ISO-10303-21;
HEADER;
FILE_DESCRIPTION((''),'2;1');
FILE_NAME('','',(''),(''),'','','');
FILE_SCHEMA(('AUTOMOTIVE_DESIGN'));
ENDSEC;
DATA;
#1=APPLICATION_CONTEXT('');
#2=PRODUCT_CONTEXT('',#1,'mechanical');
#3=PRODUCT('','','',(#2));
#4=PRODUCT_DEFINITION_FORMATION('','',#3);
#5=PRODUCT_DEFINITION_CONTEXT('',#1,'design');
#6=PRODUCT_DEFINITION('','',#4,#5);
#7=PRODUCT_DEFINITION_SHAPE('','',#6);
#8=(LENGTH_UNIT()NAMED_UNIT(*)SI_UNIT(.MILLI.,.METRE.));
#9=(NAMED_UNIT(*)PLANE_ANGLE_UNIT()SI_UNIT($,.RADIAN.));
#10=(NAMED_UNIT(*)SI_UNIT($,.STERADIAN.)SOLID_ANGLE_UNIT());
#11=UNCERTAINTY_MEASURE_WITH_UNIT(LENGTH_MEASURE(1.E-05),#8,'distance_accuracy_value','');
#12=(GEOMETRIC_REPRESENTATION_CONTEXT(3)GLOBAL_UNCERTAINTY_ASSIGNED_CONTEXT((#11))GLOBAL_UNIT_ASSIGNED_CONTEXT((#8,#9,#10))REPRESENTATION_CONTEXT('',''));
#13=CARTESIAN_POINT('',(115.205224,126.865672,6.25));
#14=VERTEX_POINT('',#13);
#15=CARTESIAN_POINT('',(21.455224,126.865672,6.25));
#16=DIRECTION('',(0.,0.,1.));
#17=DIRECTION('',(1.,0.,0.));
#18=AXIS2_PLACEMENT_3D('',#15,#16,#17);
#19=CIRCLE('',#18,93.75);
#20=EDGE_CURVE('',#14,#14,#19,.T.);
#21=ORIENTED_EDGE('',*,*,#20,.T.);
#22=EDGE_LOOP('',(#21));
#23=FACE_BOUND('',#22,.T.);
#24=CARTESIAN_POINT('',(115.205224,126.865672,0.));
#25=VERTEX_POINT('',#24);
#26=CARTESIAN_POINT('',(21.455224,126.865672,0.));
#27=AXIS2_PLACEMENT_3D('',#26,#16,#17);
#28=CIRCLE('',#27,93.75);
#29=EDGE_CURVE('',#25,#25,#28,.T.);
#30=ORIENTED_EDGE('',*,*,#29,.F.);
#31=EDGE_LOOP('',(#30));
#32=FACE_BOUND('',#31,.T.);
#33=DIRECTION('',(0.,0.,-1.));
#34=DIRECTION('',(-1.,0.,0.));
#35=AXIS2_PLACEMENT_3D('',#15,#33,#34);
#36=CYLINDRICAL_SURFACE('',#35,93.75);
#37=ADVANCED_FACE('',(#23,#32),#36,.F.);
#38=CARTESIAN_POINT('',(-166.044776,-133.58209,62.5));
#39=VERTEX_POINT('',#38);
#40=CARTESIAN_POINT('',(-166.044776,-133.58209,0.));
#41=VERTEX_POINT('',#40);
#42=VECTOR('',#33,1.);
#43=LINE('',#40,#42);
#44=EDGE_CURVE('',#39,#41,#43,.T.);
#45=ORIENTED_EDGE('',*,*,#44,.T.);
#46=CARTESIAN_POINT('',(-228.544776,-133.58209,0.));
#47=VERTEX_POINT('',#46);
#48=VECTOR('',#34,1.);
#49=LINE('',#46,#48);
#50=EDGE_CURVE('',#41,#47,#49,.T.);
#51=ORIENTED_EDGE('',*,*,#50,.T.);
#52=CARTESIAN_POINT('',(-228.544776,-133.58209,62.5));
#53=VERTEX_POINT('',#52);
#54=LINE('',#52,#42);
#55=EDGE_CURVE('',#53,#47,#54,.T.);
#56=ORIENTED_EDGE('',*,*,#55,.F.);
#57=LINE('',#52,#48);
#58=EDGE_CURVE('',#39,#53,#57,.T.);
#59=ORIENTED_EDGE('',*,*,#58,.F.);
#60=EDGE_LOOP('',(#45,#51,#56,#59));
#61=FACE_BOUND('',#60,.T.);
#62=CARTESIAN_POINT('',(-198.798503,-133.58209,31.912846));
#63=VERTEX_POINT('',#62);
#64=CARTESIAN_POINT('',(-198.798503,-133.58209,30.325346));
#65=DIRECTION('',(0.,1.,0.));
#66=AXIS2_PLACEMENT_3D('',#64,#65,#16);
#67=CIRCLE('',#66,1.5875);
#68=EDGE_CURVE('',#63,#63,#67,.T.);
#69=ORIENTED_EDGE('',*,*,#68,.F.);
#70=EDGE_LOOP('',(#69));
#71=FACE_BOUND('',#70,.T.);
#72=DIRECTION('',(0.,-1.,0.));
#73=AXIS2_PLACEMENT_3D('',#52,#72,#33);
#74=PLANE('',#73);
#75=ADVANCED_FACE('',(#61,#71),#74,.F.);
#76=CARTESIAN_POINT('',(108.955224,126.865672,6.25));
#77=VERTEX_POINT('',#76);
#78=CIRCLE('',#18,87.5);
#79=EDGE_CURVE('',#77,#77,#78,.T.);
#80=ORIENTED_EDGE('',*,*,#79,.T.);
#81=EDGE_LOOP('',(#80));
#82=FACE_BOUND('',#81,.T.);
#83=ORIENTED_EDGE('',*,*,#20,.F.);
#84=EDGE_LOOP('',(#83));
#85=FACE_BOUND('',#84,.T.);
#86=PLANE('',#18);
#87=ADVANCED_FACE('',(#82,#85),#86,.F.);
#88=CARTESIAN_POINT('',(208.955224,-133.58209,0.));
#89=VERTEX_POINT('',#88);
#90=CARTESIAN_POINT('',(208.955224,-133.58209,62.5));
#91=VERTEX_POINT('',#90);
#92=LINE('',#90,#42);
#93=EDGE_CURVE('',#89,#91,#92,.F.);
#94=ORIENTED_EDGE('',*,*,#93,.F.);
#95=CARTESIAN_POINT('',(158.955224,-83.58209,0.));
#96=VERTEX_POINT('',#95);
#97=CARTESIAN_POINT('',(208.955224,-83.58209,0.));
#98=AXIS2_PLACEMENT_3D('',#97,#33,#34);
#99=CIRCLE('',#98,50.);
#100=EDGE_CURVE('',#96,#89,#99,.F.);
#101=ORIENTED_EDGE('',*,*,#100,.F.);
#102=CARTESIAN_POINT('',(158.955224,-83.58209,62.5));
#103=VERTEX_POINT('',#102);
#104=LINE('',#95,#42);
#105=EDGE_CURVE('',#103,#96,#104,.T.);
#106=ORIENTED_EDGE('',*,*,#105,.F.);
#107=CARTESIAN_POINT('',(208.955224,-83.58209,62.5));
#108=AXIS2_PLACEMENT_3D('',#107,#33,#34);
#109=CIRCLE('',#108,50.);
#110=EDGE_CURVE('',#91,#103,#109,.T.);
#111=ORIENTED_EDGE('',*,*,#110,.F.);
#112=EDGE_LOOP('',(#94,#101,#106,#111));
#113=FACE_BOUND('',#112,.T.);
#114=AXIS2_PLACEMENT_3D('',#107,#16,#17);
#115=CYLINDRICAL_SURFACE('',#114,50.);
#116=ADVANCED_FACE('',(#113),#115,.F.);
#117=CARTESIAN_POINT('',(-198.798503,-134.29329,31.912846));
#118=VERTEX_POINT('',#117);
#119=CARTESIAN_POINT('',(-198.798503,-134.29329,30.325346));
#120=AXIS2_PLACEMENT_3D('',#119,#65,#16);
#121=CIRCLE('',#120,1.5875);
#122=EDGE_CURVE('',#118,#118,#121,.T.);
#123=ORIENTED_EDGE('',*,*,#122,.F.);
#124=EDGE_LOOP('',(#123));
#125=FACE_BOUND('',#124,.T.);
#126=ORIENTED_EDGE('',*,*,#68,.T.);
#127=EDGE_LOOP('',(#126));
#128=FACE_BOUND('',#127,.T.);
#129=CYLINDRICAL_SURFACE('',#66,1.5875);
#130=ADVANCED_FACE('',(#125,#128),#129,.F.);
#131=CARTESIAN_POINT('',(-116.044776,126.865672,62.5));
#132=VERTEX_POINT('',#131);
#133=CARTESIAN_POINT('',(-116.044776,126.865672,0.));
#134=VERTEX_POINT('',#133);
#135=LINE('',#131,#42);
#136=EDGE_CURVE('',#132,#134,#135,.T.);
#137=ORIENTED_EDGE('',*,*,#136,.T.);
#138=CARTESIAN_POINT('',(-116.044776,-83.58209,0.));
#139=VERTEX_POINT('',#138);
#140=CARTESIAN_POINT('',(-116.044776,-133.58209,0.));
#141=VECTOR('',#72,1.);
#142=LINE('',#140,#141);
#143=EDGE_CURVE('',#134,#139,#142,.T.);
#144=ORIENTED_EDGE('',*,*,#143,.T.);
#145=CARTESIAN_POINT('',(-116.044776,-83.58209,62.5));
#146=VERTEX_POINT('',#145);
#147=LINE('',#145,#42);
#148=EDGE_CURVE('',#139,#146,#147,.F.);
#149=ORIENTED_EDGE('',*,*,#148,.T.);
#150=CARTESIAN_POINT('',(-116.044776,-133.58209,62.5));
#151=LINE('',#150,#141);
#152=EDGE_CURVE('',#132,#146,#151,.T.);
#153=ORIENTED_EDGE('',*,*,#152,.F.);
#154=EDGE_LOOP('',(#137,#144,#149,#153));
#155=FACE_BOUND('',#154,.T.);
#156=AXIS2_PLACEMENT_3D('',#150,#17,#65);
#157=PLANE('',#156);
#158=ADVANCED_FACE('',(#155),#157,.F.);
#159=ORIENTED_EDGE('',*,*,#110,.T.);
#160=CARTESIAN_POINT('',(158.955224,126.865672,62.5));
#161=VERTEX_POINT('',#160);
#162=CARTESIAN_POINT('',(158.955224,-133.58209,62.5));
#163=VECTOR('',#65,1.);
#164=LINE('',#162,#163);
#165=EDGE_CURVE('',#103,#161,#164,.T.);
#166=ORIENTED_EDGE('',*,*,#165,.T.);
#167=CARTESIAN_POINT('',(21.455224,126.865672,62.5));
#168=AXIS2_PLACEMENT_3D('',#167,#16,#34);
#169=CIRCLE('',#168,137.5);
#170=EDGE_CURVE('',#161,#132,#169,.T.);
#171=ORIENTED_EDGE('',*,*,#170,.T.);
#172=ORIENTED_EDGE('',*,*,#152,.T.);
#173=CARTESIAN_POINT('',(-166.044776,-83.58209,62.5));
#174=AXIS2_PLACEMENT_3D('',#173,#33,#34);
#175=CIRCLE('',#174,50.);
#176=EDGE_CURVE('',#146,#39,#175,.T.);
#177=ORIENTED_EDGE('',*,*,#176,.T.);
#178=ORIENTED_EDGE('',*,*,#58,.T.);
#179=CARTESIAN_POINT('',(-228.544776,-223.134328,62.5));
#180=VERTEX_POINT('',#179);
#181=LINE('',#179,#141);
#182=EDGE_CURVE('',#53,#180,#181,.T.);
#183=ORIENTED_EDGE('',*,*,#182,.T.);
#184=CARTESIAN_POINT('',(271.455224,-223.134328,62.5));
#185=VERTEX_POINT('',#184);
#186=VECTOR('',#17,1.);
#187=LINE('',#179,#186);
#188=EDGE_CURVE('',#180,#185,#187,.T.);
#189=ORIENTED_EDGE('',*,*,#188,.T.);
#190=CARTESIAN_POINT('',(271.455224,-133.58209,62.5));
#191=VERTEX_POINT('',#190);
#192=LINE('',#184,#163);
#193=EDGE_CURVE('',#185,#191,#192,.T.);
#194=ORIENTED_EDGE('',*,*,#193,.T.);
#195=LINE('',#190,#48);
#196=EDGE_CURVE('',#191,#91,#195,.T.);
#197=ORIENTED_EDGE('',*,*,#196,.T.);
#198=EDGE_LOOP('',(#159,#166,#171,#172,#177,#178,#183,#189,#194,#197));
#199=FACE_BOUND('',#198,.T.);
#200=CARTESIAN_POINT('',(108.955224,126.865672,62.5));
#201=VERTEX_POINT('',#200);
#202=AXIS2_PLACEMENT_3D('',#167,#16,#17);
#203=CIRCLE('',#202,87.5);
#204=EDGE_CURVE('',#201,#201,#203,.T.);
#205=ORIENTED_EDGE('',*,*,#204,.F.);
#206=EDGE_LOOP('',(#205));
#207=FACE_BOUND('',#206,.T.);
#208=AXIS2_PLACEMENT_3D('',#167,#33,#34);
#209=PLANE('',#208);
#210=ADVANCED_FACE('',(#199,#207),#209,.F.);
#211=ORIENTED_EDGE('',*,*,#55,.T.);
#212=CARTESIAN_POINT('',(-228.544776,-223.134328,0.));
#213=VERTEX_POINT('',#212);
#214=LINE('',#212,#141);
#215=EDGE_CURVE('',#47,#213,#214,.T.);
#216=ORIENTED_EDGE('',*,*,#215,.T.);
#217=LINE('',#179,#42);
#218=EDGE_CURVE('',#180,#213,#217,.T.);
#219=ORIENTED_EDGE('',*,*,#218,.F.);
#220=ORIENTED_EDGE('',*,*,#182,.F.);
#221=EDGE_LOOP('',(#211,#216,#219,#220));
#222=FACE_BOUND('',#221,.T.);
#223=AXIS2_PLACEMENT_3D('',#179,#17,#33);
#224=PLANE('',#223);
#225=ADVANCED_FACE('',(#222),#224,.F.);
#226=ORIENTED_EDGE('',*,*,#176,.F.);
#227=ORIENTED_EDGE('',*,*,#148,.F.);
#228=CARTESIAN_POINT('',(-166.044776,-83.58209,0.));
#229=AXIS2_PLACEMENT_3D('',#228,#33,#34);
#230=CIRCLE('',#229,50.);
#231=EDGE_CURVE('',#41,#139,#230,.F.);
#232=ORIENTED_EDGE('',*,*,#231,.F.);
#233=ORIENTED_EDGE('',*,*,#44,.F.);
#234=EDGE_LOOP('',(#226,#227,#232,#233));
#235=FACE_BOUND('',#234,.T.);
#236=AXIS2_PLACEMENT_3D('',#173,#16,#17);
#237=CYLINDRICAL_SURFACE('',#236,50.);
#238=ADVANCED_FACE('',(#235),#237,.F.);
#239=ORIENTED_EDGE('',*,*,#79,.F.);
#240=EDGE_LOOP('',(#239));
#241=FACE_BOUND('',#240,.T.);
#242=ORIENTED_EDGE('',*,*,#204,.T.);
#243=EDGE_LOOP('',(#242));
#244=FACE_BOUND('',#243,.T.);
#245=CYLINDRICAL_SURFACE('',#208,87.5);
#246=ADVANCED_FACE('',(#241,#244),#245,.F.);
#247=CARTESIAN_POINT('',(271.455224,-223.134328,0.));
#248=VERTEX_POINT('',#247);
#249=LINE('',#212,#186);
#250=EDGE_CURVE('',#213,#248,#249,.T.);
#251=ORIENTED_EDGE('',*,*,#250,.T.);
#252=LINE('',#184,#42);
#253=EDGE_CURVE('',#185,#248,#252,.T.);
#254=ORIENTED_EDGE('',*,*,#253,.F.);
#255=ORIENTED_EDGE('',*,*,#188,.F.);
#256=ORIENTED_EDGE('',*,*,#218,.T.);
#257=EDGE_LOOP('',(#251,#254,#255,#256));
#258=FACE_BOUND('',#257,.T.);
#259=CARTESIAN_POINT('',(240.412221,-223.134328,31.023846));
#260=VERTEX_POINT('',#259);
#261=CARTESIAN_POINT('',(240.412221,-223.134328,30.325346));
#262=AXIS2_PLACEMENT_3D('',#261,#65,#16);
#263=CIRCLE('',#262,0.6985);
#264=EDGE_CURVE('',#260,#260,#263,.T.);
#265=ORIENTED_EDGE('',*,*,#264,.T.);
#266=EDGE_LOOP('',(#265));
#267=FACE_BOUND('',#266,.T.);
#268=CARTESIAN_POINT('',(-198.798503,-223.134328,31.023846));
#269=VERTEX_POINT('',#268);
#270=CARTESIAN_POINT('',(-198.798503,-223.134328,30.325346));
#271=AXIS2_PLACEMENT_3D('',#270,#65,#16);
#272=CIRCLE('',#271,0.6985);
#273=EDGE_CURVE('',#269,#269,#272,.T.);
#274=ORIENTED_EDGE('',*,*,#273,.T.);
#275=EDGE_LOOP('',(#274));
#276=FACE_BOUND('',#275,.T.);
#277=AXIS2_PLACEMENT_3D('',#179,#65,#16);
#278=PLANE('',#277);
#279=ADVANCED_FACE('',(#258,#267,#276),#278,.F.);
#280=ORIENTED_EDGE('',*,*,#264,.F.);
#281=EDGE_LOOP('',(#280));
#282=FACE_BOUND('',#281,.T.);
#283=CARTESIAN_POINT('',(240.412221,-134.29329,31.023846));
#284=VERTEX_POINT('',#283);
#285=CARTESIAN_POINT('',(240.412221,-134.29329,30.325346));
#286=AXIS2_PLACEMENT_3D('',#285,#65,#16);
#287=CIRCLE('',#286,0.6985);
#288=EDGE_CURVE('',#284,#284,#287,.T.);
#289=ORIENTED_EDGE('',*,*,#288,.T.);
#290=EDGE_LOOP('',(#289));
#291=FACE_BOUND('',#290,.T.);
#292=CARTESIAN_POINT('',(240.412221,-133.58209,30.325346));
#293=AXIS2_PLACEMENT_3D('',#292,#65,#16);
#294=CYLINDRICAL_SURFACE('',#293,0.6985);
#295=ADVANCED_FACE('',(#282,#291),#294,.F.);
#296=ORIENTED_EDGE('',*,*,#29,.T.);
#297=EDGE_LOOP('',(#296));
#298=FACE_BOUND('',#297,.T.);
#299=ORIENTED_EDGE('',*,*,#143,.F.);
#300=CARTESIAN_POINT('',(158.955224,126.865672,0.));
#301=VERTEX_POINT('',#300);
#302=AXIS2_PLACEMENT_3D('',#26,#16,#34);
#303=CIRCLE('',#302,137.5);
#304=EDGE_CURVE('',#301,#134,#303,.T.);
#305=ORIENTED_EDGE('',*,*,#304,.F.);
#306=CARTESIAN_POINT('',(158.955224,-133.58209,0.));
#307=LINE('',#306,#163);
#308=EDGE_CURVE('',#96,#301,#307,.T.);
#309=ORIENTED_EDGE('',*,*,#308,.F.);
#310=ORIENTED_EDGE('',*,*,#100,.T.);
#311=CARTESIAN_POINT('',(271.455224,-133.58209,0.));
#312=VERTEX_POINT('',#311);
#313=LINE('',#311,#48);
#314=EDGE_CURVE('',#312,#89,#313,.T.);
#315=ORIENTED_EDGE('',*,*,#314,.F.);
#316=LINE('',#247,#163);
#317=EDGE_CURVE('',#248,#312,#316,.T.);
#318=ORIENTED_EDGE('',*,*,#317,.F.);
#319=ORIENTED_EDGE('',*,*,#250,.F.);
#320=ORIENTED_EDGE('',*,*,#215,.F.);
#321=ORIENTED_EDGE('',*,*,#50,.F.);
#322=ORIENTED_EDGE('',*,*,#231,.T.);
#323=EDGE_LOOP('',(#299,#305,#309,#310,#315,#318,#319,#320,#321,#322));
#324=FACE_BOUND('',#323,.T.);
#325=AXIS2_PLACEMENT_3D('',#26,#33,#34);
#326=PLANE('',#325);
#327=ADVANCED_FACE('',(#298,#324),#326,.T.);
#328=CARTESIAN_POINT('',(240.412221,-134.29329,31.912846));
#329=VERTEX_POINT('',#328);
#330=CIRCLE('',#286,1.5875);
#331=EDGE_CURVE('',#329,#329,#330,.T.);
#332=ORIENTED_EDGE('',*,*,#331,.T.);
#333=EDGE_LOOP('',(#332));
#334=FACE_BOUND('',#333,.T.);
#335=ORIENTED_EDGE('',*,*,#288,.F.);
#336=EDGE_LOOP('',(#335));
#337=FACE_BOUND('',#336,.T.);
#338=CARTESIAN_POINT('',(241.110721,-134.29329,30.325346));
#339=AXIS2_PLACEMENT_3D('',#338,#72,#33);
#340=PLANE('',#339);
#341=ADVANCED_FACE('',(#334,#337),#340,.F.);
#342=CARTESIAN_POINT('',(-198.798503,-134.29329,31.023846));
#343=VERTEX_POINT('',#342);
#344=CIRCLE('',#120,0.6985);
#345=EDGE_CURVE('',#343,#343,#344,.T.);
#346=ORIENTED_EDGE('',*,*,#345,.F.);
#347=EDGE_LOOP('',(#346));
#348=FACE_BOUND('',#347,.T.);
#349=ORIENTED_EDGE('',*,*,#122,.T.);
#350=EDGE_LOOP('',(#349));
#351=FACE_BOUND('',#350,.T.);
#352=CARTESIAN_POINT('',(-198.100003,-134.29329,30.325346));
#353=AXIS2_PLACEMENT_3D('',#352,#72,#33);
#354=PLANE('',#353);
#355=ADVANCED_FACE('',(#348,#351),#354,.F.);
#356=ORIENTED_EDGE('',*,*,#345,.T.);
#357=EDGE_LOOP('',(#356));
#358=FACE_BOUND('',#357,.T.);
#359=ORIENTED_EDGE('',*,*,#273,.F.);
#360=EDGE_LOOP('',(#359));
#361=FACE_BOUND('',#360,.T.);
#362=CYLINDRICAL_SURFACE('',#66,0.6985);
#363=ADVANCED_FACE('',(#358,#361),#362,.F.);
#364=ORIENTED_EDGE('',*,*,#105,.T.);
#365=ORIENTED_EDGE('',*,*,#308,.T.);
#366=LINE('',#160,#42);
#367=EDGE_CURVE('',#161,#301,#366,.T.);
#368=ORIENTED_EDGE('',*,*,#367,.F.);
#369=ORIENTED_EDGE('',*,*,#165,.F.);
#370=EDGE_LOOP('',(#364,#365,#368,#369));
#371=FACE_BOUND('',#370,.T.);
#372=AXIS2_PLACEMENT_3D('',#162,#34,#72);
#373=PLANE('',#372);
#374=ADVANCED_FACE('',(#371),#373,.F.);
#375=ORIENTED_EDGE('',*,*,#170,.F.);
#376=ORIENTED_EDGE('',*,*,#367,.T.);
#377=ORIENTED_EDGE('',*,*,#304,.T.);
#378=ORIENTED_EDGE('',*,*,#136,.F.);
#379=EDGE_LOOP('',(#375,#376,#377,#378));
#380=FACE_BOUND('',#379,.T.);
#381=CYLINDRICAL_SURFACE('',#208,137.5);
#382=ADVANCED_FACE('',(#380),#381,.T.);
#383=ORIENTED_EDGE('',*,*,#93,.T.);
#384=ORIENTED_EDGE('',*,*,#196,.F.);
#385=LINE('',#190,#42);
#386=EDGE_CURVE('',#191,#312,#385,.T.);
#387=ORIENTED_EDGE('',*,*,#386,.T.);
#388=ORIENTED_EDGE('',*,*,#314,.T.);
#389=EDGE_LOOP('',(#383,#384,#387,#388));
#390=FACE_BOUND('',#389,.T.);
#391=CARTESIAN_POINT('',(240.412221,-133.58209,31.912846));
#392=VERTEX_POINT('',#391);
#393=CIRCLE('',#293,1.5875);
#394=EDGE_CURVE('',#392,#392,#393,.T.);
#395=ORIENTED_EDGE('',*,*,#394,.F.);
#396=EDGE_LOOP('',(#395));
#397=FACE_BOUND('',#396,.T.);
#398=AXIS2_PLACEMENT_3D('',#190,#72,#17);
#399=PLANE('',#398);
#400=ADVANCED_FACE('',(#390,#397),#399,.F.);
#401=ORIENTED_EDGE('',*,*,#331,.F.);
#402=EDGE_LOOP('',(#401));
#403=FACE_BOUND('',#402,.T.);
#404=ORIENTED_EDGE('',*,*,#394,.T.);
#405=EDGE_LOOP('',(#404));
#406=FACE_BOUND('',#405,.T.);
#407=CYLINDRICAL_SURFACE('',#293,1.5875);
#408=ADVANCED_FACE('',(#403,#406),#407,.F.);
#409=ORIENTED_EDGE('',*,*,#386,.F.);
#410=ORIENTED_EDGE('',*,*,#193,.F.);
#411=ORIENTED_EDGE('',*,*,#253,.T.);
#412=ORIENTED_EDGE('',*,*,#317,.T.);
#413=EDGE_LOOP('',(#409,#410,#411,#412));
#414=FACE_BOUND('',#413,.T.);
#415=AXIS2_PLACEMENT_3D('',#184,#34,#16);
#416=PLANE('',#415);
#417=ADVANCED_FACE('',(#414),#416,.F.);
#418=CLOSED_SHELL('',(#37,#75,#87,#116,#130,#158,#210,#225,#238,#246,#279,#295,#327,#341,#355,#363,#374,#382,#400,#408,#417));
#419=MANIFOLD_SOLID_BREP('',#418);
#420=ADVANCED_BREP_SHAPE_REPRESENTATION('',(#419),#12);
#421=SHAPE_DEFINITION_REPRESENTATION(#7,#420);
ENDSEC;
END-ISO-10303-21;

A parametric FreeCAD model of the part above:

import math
import FreeCAD as App
import Part
import Sketcher
from FreeCAD import Vector
Q = App.Units.Quantity


def edges_at(feature, points):
    """Names of the edges that pass closest to the given points."""
    edges = feature.Shape.Edges
    near = lambda p: min(range(len(edges)), key=lambda i: edges[i].distToShape(Part.Vertex(*p))[0])
    return sorted({f"Edge{near(p) + 1}" for p in points})

doc = App.newDocument("Part")
body = doc.addObject("PartDesign::Body", "Body")

sketch1 = body.newObject("Sketcher::SketchObject", "Sketch")
sketch1.AttachmentSupport = (doc.getObject("XY_Plane"), [""])
sketch1.MapMode = "FlatFace"
sketch1.addGeometry([
    Part.LineSegment(Vector(-229, -223, 0), Vector(271, -223, 0)),
    Part.LineSegment(Vector(271, -223, 0), Vector(271, -134, 0)),
    Part.LineSegment(Vector(271, -134, 0), Vector(159, -134, 0)),
    Part.LineSegment(Vector(159, -134, 0), Vector(159, 127, 0)),
    Part.ArcOfCircle(Part.Circle(Vector(21, 127, 0), Vector(0, 0, 1), 138), math.radians(0), math.radians(180)),
    Part.LineSegment(Vector(-116, 127, 0), Vector(-116, -134, 0)),
    Part.LineSegment(Vector(-116, -134, 0), Vector(-229, -134, 0)),
    Part.LineSegment(Vector(-229, -134, 0), Vector(-229, -223, 0)),
    Part.Circle(Vector(21, 127, 0), Vector(0, 0, 1), 88),
], False)
sketch1.addConstraint([
    Sketcher.Constraint("Coincident", 0, 2, 1, 1),
    Sketcher.Constraint("Coincident", 1, 2, 2, 1),
    Sketcher.Constraint("Coincident", 2, 2, 3, 1),
    Sketcher.Constraint("Tangent", 3, 2, 4, 1),
    Sketcher.Constraint("Tangent", 4, 2, 5, 1),
    Sketcher.Constraint("Coincident", 5, 2, 6, 1),
    Sketcher.Constraint("Coincident", 6, 2, 7, 1),
    Sketcher.Constraint("Coincident", 7, 2, 0, 1),
    Sketcher.Constraint("Horizontal", 0),
    Sketcher.Constraint("Vertical", 1),
    Sketcher.Constraint("Horizontal", 2),
    Sketcher.Constraint("Vertical", 3),
    Sketcher.Constraint("Vertical", 5),
    Sketcher.Constraint("Horizontal", 6),
    Sketcher.Constraint("Vertical", 7),
    Sketcher.Constraint("Coincident", 8, 3, 4, 3),
    Sketcher.Constraint("Horizontal", 2, 2, 5, 2),
    Sketcher.Constraint("Equal", 2, 6),
    Sketcher.Constraint("Diameter", 8, Q("175 mm")),
    Sketcher.Constraint("Radius", 4, Q("137.5 mm")),
    Sketcher.Constraint("DistanceX", 0, 1, 0, 2, Q("500 mm")),
    Sketcher.Constraint("DistanceY", 0, 2, 4, 3, Q("350 mm")),
    Sketcher.Constraint("DistanceY", 1, 1, 1, 2, Q("89.552239 mm")),
    Sketcher.Constraint("DistanceY", -1, 1, 4, 3, Q("126.865672 mm")),
    Sketcher.Constraint("DistanceX", -1, 1, 4, 3, Q("21.455224 mm")),
])
pad1 = body.newObject("PartDesign::Pad", "Pad")
pad1.Profile = sketch1
pad1.Length = 62.5
doc.recompute()

fillet = body.newObject("PartDesign::Fillet", "Fillet")
fillet.Base = (pad1, edges_at(pad1, [(-116.045, -133.582, 31.25), (158.955, -133.582, 31.25)]))
fillet.Radius = 50

sketch2 = body.newObject("Sketcher::SketchObject", "Sketch001")
sketch2.AttachmentSupport = (doc.getObject("XY_Plane"), [""])
sketch2.MapMode = "FlatFace"
sketch2.addGeometry(Part.Circle(Vector(21, 127, 0), Vector(0, 0, 1), 94), False)
sketch2.addConstraint([
    Sketcher.Constraint("Diameter", 0, Q("187.5 mm")),
    Sketcher.Constraint("DistanceY", -1, 1, 0, 3, Q("126.865672 mm")),
    Sketcher.Constraint("DistanceX", -1, 1, 0, 3, Q("21.455224 mm")),
])
pocket1 = body.newObject("PartDesign::Pocket", "Pocket")
pocket1.Profile = sketch2
pocket1.Length = 6.25
pocket1.Reversed = True

sketch3 = body.newObject("Sketcher::SketchObject", "Sketch002")
sketch3.AttachmentSupport = (doc.getObject("XZ_Plane"), [""])
sketch3.MapMode = "FlatFace"
sketch3.AttachmentOffset = App.Placement(Vector(0, 0, 133.58209), App.Rotation())
sketch3.addGeometry([
    Part.Circle(Vector(-198.8, 30.3, 0), Vector(0, 0, 1), 0.7),
    Part.Circle(Vector(240.4, 30.3, 0), Vector(0, 0, 1), 0.7),
], False)
sketch3.addConstraint([
    Sketcher.Constraint("Equal", 0, 1),
    Sketcher.Constraint("Horizontal", 0, 3, 1, 3),
    Sketcher.Constraint("Diameter", 0, Q("1.397 mm")),
    Sketcher.Constraint("DistanceX", -1, 1, 1, 3, Q("240.412221 mm")),
    Sketcher.Constraint("DistanceX", 0, 3, -1, 1, Q("198.798503 mm")),
    Sketcher.Constraint("DistanceY", -1, 1, 0, 3, Q("30.325346 mm")),
])
doc.recompute()
hole = body.newObject("PartDesign::Hole", "Hole")
hole.Profile = sketch3
hole.ThreadType = "None"
hole.Diameter = 1.397
hole.DepthType = "ThroughAll"
hole.HoleCutType = "Counterbore"
hole.HoleCutDiameter = 3.175
hole.HoleCutDepth = 0.7112
hole.Reversed = True

doc.recompute()
